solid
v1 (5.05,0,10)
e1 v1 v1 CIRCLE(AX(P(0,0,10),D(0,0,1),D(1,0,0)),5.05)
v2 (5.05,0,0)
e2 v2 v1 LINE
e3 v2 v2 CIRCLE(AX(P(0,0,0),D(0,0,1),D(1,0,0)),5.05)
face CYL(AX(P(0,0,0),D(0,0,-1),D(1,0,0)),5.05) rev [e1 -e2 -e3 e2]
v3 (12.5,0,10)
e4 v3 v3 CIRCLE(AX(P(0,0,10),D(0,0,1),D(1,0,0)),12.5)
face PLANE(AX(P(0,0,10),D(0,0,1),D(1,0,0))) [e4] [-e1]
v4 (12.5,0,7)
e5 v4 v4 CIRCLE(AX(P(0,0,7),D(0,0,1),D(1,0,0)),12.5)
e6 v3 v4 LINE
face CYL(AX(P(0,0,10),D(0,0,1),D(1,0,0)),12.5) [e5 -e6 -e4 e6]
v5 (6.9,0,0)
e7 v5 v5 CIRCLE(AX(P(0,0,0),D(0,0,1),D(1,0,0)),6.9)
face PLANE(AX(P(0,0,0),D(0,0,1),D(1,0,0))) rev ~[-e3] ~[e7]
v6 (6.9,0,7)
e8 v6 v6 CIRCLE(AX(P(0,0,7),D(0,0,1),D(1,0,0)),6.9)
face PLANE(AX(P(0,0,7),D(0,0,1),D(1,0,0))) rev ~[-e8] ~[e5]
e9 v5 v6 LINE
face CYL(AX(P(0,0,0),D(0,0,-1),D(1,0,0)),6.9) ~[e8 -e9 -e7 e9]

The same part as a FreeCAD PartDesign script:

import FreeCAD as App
import Part
import Sketcher

V = App.Vector
Q = App.Units.Quantity

doc = App.newDocument("Part")
body = doc.addObject("PartDesign::Body", "Body")

sketch1 = body.newObject("Sketcher::SketchObject", "Sketch")
sketch1.AttachmentSupport = (doc.getObject("XY_Plane"), [""])
sketch1.MapMode = "FlatFace"
sketch1.addGeometry([
    Part.Circle(V(0, 0, 0), V(0, 0, 1), 7),
    Part.Circle(V(0, 0, 0), V(0, 0, 1), 5),
], False)
sketch1.addConstraint([
    Sketcher.Constraint("Coincident", 0, 3, -1, 1),
    Sketcher.Constraint("Coincident", 1, 3, -1, 1),
    Sketcher.Constraint("Diameter", 0, Q("13.8 mm")),
    Sketcher.Constraint("Diameter", 1, Q("10.1 mm")),
])
pad1 = body.newObject("PartDesign::Pad", "Pad")
pad1.Profile = sketch1
pad1.Length = 10

sketch2 = body.newObject("Sketcher::SketchObject", "Sketch001")
sketch2.AttachmentSupport = (doc.getObject("XY_Plane"), [""])
sketch2.MapMode = "FlatFace"
sketch2.AttachmentOffset = App.Placement(V(0, 0, 10), App.Rotation())
sketch2.addGeometry([
    Part.Circle(V(0, 0, 0), V(0, 0, 1), 12),
    Part.Circle(V(0, 0, 0), V(0, 0, 1), 7),
], False)
sketch2.addConstraint([
    Sketcher.Constraint("Coincident", 0, 3, -1, 1),
    Sketcher.Constraint("Coincident", 1, 3, -1, 1),
    Sketcher.Constraint("Diameter", 0, Q("25 mm")),
    Sketcher.Constraint("Diameter", 1, Q("13.8 mm")),
])
pad2 = body.newObject("PartDesign::Pad", "Pad001")
pad2.Profile = sketch2
pad2.Length = 3
pad2.Reversed = True

doc.recompute()
